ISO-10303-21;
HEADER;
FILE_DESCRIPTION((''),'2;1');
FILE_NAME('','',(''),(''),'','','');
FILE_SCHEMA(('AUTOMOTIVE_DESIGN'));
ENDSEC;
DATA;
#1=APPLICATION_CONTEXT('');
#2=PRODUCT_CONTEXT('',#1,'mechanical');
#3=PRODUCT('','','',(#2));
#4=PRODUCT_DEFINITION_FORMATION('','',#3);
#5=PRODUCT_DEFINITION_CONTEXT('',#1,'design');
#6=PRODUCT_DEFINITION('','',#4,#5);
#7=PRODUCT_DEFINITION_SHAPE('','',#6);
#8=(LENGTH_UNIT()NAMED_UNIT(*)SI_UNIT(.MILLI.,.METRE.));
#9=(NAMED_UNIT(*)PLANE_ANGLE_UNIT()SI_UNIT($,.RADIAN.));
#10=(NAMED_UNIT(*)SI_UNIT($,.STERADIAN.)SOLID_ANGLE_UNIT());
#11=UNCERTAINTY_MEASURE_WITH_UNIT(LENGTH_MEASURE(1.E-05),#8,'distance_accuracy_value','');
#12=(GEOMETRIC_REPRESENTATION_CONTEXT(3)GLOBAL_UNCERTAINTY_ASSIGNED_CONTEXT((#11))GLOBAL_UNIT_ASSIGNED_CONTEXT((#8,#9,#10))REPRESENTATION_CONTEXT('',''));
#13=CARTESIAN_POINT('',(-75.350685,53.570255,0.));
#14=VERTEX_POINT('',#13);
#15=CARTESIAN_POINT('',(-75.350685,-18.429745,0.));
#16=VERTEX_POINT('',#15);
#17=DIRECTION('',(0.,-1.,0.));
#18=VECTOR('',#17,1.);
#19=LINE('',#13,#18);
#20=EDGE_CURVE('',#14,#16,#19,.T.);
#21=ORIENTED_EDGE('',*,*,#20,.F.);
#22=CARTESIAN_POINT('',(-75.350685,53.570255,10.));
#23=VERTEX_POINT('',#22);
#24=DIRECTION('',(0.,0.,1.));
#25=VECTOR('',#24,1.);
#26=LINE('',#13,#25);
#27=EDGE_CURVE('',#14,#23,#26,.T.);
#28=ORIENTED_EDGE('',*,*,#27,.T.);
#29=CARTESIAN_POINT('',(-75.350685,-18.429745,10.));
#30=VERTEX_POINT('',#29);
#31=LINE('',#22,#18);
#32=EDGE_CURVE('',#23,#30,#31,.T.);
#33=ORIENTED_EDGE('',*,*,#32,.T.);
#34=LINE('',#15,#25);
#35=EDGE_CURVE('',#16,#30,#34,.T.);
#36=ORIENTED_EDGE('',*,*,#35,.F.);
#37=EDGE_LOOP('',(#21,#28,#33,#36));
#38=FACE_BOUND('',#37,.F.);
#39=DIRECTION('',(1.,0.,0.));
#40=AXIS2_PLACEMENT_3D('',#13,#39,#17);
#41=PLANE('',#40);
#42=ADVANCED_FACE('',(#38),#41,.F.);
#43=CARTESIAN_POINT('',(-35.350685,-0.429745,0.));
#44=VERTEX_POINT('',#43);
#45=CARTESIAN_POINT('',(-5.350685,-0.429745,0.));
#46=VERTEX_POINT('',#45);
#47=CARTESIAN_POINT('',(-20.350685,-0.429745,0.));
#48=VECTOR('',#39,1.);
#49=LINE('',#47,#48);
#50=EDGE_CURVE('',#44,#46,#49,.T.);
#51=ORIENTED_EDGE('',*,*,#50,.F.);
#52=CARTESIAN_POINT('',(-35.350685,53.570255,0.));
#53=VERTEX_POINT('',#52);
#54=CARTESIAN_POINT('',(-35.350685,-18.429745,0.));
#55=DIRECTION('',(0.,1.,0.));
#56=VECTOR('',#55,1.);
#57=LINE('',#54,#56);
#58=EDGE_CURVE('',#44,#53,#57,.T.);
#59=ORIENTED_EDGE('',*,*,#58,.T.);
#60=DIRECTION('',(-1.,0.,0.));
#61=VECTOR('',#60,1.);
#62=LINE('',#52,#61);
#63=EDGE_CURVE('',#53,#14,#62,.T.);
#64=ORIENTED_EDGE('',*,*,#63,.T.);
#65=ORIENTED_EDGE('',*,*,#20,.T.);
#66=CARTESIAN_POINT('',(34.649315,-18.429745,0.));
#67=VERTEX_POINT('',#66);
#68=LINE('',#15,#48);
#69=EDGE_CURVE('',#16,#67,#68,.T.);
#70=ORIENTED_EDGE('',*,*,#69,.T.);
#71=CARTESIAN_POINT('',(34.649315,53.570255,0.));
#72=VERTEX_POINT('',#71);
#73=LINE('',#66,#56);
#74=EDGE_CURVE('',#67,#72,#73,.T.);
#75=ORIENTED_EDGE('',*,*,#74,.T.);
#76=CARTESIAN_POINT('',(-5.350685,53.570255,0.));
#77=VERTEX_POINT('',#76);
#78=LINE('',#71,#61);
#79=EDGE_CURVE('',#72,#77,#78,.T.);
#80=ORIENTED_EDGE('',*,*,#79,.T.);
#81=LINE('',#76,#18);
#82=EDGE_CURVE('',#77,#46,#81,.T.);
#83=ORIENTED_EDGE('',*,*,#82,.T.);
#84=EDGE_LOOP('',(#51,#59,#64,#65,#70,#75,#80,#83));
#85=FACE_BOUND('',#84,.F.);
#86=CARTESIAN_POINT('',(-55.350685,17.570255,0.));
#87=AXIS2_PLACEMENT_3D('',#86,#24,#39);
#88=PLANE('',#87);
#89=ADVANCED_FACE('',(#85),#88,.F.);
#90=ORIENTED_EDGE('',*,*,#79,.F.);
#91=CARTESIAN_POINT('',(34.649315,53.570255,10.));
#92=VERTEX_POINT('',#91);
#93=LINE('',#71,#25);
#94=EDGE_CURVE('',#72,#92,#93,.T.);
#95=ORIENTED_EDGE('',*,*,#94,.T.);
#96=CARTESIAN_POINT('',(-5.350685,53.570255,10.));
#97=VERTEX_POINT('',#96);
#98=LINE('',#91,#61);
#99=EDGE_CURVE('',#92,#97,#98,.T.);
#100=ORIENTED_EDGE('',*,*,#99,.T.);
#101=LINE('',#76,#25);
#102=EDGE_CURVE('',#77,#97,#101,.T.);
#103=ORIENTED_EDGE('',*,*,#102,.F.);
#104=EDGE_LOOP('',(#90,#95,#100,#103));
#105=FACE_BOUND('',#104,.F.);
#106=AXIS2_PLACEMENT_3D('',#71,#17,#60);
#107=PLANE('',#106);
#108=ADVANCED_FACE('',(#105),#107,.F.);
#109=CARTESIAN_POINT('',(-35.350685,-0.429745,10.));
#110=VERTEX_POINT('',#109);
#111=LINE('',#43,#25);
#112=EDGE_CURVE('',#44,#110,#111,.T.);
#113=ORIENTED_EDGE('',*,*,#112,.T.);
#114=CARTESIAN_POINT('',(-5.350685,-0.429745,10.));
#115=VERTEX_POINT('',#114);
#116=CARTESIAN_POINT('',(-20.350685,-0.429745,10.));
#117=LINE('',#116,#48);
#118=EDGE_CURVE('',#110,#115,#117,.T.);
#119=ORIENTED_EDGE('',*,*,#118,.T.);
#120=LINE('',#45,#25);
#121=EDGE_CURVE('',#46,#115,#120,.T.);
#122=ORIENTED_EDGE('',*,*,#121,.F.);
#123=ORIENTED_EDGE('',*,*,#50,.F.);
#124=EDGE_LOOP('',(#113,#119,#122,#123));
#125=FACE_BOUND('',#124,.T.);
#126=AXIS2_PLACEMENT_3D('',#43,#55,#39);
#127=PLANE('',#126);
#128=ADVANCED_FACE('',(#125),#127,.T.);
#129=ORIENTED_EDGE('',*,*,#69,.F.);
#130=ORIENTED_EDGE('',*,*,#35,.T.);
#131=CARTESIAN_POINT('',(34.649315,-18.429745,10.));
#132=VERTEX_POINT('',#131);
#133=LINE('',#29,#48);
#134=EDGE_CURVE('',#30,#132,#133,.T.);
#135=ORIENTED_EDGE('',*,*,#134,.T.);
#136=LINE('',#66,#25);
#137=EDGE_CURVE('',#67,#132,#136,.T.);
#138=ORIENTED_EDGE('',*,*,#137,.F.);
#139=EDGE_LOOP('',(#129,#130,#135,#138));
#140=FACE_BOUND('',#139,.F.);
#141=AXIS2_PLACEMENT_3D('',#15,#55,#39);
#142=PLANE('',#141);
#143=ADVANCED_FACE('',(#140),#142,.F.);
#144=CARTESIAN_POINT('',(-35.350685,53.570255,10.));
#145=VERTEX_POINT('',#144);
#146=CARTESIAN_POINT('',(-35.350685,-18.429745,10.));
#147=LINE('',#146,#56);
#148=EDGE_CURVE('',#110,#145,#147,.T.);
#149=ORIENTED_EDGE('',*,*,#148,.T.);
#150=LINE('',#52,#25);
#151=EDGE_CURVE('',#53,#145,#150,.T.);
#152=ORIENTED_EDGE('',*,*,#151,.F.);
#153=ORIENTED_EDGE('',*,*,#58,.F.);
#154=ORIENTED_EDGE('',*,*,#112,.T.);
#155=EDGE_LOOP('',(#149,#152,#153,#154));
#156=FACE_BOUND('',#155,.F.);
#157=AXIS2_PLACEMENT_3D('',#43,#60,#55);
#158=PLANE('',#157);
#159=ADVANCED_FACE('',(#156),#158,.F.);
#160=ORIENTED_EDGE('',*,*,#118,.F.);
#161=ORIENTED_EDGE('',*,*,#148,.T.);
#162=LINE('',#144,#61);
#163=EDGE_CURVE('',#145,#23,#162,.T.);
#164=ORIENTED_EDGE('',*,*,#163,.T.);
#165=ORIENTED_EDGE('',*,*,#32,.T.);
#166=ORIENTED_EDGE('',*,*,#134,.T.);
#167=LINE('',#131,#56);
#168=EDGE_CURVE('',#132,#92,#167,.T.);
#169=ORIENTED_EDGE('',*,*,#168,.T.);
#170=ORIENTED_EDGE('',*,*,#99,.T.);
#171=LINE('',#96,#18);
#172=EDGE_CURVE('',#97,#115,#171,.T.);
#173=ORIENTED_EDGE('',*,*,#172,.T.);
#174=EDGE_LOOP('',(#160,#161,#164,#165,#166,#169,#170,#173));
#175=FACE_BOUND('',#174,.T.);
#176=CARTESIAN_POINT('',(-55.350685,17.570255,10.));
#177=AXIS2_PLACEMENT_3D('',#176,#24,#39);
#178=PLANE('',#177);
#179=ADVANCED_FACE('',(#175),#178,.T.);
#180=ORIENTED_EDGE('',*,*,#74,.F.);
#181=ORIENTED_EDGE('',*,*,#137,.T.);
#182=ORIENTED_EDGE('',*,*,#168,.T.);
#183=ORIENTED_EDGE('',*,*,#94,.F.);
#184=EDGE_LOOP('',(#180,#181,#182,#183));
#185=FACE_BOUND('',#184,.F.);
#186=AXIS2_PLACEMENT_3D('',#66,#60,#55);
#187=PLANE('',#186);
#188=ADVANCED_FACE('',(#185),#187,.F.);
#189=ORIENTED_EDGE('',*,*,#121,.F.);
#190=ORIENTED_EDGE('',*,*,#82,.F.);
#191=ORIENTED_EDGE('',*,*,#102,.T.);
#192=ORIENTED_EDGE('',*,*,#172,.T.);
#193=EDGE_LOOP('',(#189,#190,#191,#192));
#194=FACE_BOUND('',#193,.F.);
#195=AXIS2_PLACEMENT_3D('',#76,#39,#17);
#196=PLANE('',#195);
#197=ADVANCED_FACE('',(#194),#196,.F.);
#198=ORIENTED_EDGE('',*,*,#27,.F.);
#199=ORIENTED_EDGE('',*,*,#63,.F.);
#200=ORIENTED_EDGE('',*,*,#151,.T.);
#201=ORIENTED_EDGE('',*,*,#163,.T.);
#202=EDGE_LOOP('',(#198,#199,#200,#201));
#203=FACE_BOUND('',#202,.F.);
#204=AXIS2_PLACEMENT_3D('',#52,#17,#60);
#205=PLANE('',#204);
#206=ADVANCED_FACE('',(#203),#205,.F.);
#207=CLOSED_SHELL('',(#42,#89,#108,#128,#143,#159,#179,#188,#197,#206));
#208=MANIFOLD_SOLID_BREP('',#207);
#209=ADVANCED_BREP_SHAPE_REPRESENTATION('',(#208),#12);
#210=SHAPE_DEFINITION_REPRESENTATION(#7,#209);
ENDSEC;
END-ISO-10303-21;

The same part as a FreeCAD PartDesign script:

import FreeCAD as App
import Part
import Sketcher

V = App.Vector


def add_polygon(sketch, points):
    """Adds a closed chain of lines whose ends are joined by coincident constraints."""
    first, n = sketch.GeometryCount, len(points)
    for a, b in zip(points, points[1:] + points[:1]):
        sketch.addGeometry(Part.LineSegment(App.Vector(*a, 0), App.Vector(*b, 0)), False)
    for i in range(n):
        sketch.addConstraint(Sketcher.Constraint("Coincident", first + i, 2, first + (i + 1) % n, 1))

doc = App.newDocument("Part")
body = doc.addObject("PartDesign::Body", "Body")

# Sketch on XY plane
sketch1 = doc.addObject("Sketcher::SketchObject", "Sketch")
body.addObject(sketch1)
sketch1.AttachmentSupport = (doc.XY_Plane, [""])
sketch1.MapMode = "FlatFace"
add_polygon(sketch1, [(-35, 54), (-75, 54), (-75, -18), (35, -18), (35, 54), (-5, 54), (-5, 0), (-35, 0)])  # lines 0-7
sketch1.addConstraint(Sketcher.Constraint("Horizontal", 0))
sketch1.addConstraint(Sketcher.Constraint("Vertical", 1))
sketch1.addConstraint(Sketcher.Constraint("Horizontal", 2))
sketch1.addConstraint(Sketcher.Constraint("Vertical", 3))
sketch1.addConstraint(Sketcher.Constraint("Horizontal", 4))
sketch1.addConstraint(Sketcher.Constraint("Vertical", 5))
sketch1.addConstraint(Sketcher.Constraint("Horizontal", 6))
sketch1.addConstraint(Sketcher.Constraint("Vertical", 7))
sketch1.addConstraint(Sketcher.Constraint("Horizontal", 0, 2, 3, 2))
sketch1.addConstraint(Sketcher.Constraint("Equal", 0, 4))
sketch1.addConstraint(Sketcher.Constraint("DistanceX", 0, 2, 0, 1, 40.0))
sketch1.addConstraint(Sketcher.Constraint("DistanceX", 2, 1, 2, 2, 110.0))
sketch1.addConstraint(Sketcher.Constraint("DistanceY", 1, 2, 1, 1, 72.0))
sketch1.addConstraint(Sketcher.Constraint("DistanceY", 5, 2, 5, 1, 54.0))
sketch1.addConstraint(Sketcher.Constraint("DistanceX", 0, 2, -1, 1, 75.350685))
sketch1.addConstraint(Sketcher.Constraint("DistanceY", -1, 1, 0, 2, 53.570255))
pad1 = doc.addObject("PartDesign::Pad", "Pad")
body.addObject(pad1)
pad1.Profile = sketch1
pad1.Length = 10

doc.recompute()
